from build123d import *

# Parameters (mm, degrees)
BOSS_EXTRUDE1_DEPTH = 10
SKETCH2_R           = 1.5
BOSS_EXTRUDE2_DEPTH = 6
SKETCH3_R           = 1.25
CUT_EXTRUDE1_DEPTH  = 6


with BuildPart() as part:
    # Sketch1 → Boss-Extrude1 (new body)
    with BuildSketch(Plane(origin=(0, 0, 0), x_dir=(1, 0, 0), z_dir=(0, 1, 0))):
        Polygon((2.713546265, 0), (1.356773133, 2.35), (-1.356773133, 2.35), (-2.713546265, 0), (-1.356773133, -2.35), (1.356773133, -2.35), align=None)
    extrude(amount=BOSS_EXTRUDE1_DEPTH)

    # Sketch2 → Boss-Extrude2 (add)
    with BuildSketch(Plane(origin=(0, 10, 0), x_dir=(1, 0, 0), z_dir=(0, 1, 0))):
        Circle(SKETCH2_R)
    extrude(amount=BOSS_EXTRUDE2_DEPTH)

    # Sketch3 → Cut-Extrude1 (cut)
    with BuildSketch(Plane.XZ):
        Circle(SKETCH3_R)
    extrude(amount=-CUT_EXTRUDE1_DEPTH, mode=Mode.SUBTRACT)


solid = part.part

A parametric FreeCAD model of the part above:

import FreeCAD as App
import Part
import Sketcher

V = App.Vector
Q = App.Units.Quantity

doc = App.newDocument("Part")
body = doc.addObject("PartDesign::Body", "Body")

sketch1 = doc.addObject("Sketcher::SketchObject", "Sketch")
body.addObject(sketch1)
sketch1.AttachmentSupport = (doc.XZ_Plane, [""])
sketch1.MapMode = "FlatFace"
sketch1.addGeometry([
    Part.LineSegment(V(2.713546, 0, 0), V(1.356773, -2.35, 0)),
    Part.LineSegment(V(1.356773, -2.35, 0), V(-1.356773, -2.35, 0)),
    Part.LineSegment(V(-1.356773, -2.35, 0), V(-2.713546, 0, 0)),
    Part.LineSegment(V(-2.713546, 0, 0), V(-1.356773, 2.35, 0)),
    Part.LineSegment(V(-1.356773, 2.35, 0), V(1.356773, 2.35, 0)),
    Part.LineSegment(V(1.356773, 2.35, 0), V(2.713546, 0, 0)),
], False)
sketch1.addConstraint([
    Sketcher.Constraint("Coincident", 0, 2, 1, 1),
    Sketcher.Constraint("Coincident", 1, 2, 2, 1),
    Sketcher.Constraint("Coincident", 2, 2, 3, 1),
    Sketcher.Constraint("Coincident", 3, 2, 4, 1),
    Sketcher.Constraint("Coincident", 4, 2, 5, 1),
    Sketcher.Constraint("Coincident", 5, 2, 0, 1),
    Sketcher.Constraint("Horizontal", 1),
    Sketcher.Constraint("Horizontal", 4),
    Sketcher.Constraint("Symmetric", 0, 2, 3, 2, -1, 1),
    Sketcher.Constraint("Symmetric", 2, 2, 5, 2, -1, 1),
    Sketcher.Constraint("PointOnObject", 2, 2, -1),
    Sketcher.Constraint("Parallel", 2, 5),
    Sketcher.Constraint("Vertical", 1, 2, 3, 2),
    Sketcher.Constraint("Angle", 0, Q("-120 deg")),
    Sketcher.Constraint("DistanceY", 1, 2, 3, 2, Q("4.7 mm")),
    Sketcher.Constraint("DistanceX", 1, 2, 1, 1, Q("2.713546 mm")),
])
pad1 = doc.addObject("PartDesign::Pad", "Pad")
body.addObject(pad1)
pad1.Profile = sketch1
pad1.Length = 10
pad1.Reversed = True

sketch2 = doc.addObject("Sketcher::SketchObject", "Sketch001")
body.addObject(sketch2)
sketch2.AttachmentSupport = (doc.XZ_Plane, [""])
sketch2.MapMode = "FlatFace"
sketch2.AttachmentOffset = App.Placement(V(0, 0, -10), App.Rotation())
sketch2.addGeometry(Part.Circle(V(0, 0, 0), V(0, 0, 1), 1.5), False)
sketch2.addConstraint([
    Sketcher.Constraint("Coincident", 0, 3, -1, 1),
    Sketcher.Constraint("Diameter", 0, Q("3 mm")),
])
pad2 = doc.addObject("PartDesign::Pad", "Pad001")
body.addObject(pad2)
pad2.Profile = sketch2
pad2.Length = 6
pad2.Reversed = True

sketch3 = doc.addObject("Sketcher::SketchObject", "Sketch002")
body.addObject(sketch3)
sketch3.AttachmentSupport = (doc.XZ_Plane, [""])
sketch3.MapMode = "FlatFace"
sketch3.addGeometry(Part.Circle(V(0, 0, 0), V(0, 0, 1), 1.25), False)
sketch3.addConstraint([
    Sketcher.Constraint("Coincident", 0, 3, -1, 1),
    Sketcher.Constraint("Diameter", 0, Q("2.5 mm")),
])
pocket1 = doc.addObject("PartDesign::Pocket", "Pocket")
body.addObject(pocket1)
pocket1.Profile = sketch3
pocket1.Length = 6

doc.recompute()
